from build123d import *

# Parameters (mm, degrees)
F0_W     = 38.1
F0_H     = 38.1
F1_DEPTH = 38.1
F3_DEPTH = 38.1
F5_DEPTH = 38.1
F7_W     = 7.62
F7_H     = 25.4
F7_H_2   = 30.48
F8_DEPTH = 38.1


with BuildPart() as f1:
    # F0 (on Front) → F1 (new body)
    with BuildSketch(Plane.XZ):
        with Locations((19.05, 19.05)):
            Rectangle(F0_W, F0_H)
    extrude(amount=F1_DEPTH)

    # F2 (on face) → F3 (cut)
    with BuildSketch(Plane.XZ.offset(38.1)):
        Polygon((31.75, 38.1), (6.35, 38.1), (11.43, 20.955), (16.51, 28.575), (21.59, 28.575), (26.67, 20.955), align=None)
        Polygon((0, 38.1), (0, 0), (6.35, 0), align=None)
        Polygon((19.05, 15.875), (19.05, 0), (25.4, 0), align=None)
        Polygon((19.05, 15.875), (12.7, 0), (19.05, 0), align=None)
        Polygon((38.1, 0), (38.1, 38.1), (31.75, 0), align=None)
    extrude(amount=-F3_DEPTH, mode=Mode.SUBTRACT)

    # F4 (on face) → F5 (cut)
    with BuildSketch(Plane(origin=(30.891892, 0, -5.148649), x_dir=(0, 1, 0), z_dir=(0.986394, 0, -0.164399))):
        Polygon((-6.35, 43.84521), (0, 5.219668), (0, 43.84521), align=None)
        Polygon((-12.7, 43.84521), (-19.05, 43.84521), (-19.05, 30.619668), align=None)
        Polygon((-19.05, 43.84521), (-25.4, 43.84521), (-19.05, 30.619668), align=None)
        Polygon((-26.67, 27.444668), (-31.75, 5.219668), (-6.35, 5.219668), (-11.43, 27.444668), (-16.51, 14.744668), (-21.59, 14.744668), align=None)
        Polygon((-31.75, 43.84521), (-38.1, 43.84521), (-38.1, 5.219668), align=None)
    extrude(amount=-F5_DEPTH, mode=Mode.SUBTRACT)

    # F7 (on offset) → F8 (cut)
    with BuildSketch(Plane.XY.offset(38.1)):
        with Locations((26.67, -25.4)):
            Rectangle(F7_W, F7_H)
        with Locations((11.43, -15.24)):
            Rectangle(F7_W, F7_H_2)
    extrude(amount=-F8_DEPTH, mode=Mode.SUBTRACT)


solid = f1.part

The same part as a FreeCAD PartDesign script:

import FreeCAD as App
import Part
import Sketcher
Q = App.Units.Quantity

doc = App.newDocument("Part")
body = doc.addObject("PartDesign::Body", "Body")

# Sketch on XZ plane
sketch1 = body.newObject("Sketcher::SketchObject", "Sketch")
sketch1.AttachmentSupport = (doc.getObject("XZ_Plane"), [""])
sketch1.MapMode = "FlatFace"
sketch1.addGeometry([
    Part.LineSegment(App.Vector(0, 38, 0), App.Vector(0, 0, 0)),
    Part.LineSegment(App.Vector(0, 0, 0), App.Vector(38, 0, 0)),
    Part.LineSegment(App.Vector(38, 0, 0), App.Vector(38, 38, 0)),
    Part.LineSegment(App.Vector(38, 38, 0), App.Vector(0, 38, 0)),
], False)
sketch1.addConstraint([
    Sketcher.Constraint("Coincident", 0, 2, 1, 1),
    Sketcher.Constraint("Coincident", 1, 2, 2, 1),
    Sketcher.Constraint("Coincident", 2, 2, 3, 1),
    Sketcher.Constraint("Coincident", 3, 2, 0, 1),
    Sketcher.Constraint("Vertical", 0),
    Sketcher.Constraint("Horizontal", 1),
    Sketcher.Constraint("Vertical", 2),
    Sketcher.Constraint("Horizontal", 3),
    Sketcher.Constraint("Coincident", 0, 2, -1, 1),
    Sketcher.Constraint("Equal", 3, 0),
    Sketcher.Constraint("DistanceX", 1, 1, 1, 2, Q("1.5 in")),
])
pad1 = body.newObject("PartDesign::Pad", "Pad")
pad1.Profile = sketch1
pad1.Length = Q("1.5 in")

# Sketch on XZ plane
sketch2 = body.newObject("Sketcher::SketchObject", "Sketch001")
sketch2.AttachmentSupport = (doc.getObject("XZ_Plane"), [""])
sketch2.MapMode = "FlatFace"
sketch2.AttachmentOffset = App.Placement(App.Vector(0, 0, 1.5 * 25.4), App.Rotation())
sketch2.addGeometry([
    Part.LineSegment(App.Vector(32, 38, 0), App.Vector(6, 38, 0)),  # 0
    Part.LineSegment(App.Vector(6, 38, 0), App.Vector(11, 21, 0)),  # 1
    Part.LineSegment(App.Vector(11, 21, 0), App.Vector(17, 29, 0)),  # 2
    Part.LineSegment(App.Vector(17, 29, 0), App.Vector(22, 29, 0)),  # 3
    Part.LineSegment(App.Vector(22, 29, 0), App.Vector(27, 21, 0)),  # 4
    Part.LineSegment(App.Vector(27, 21, 0), App.Vector(32, 38, 0)),  # 5
    Part.LineSegment(App.Vector(0, 38, 0), App.Vector(0, 0, 0)),  # 6
    Part.LineSegment(App.Vector(0, 0, 0), App.Vector(6, 0, 0)),  # 7
    Part.LineSegment(App.Vector(6, 0, 0), App.Vector(0, 38, 0)),  # 8
    Part.LineSegment(App.Vector(25, 0, 0), App.Vector(19, 16, 0)),  # 9
    Part.LineSegment(App.Vector(19, 16, 0), App.Vector(13, 0, 0)),  # 10
    Part.LineSegment(App.Vector(13, 0, 0), App.Vector(25, 0, 0)),  # 11
    Part.LineSegment(App.Vector(38, 0, 0), App.Vector(38, 38, 0)),  # 12
    Part.LineSegment(App.Vector(38, 38, 0), App.Vector(32, 0, 0)),  # 13
    Part.LineSegment(App.Vector(32, 0, 0), App.Vector(38, 0, 0)),  # 14
], False)
sketch2.addConstraint([
    Sketcher.Constraint("Coincident", 0, 2, 1, 1),
    Sketcher.Constraint("Coincident", 1, 2, 2, 1),
    Sketcher.Constraint("Coincident", 2, 2, 3, 1),
    Sketcher.Constraint("Coincident", 3, 2, 4, 1),
    Sketcher.Constraint("Coincident", 4, 2, 5, 1),
    Sketcher.Constraint("Coincident", 5, 2, 0, 1),
    Sketcher.Constraint("Coincident", 6, 2, 7, 1),
    Sketcher.Constraint("Coincident", 7, 2, 8, 1),
    Sketcher.Constraint("Coincident", 8, 2, 6, 1),
    Sketcher.Constraint("Coincident", 9, 2, 10, 1),
    Sketcher.Constraint("Coincident", 10, 2, 11, 1),
    Sketcher.Constraint("Coincident", 11, 2, 9, 1),
    Sketcher.Constraint("Coincident", 12, 2, 13, 1),
    Sketcher.Constraint("Coincident", 13, 2, 14, 1),
    Sketcher.Constraint("Coincident", 14, 2, 12, 1),
    Sketcher.Constraint("Horizontal", 0),
    Sketcher.Constraint("Horizontal", 3),
    Sketcher.Constraint("Vertical", 6),
    Sketcher.Constraint("Horizontal", 7),
    Sketcher.Constraint("Horizontal", 11),
    Sketcher.Constraint("Vertical", 12),
    Sketcher.Constraint("Horizontal", 14),
    Sketcher.Constraint("Coincident", 6, 2, -1, 1),
    Sketcher.Constraint("PointOnObject", 10, 2, -1),
    Sketcher.Constraint("PointOnObject", 13, 2, -1),
    Sketcher.Constraint("Horizontal", 1, 2, 4, 2),
    Sketcher.Constraint("Horizontal", 5, 2, 8, 2),
    Sketcher.Constraint("Horizontal", 8, 2, 12, 2),
    Sketcher.Constraint("Vertical", 0, 2, 7, 2),
    Sketcher.Constraint("Vertical", 5, 2, 13, 2),
    Sketcher.Constraint("Equal", 7, 14),
    Sketcher.Constraint("Equal", 2, 4),
    Sketcher.Constraint("Equal", 1, 5),
    Sketcher.Constraint("Equal", 9, 10),
    Sketcher.Constraint("DistanceX", 0, 2, 0, 1, Q("1 in")),
    Sketcher.Constraint("DistanceX", 3, 1, 3, 2, Q("0.2 in")),
    Sketcher.Constraint("DistanceX", 11, 1, 11, 2, Q("0.5 in")),
    Sketcher.Constraint("DistanceY", 6, 2, 6, 1, Q("1.5 in")),
    Sketcher.Constraint("DistanceX", -1, 1, 11, 2, Q("1 in")),
    Sketcher.Constraint("DistanceX", 10, 2, 14, 2, Q("1 in")),
    Sketcher.Constraint("DistanceX", 0, 2, 1, 2, Q("0.2 in")),
    Sketcher.Constraint("DistanceY", 1, 2, 2, 2, Q("0.3 in")),
    Sketcher.Constraint("DistanceY", 9, 2, 1, 2, Q("0.2 in")),
    Sketcher.Constraint("DistanceY", -1, 1, 1, 2, Q("0.825 in")),
])
pocket1 = body.newObject("PartDesign::Pocket", "Pocket")
pocket1.Profile = sketch2
pocket1.Length = Q("1.5 in")

# Sketch on an angled plane
sketch3 = body.newObject("Sketcher::SketchObject", "Sketch002")
sketch3.Placement = App.Placement(App.Vector(30.891892, 0, -5.148649), App.Rotation(App.Vector(0, 1, 0), App.Vector(0.164398987, 0, 0.986393924), App.Vector(0.986393924, 0, -0.164398987), "ZXY"))
sketch3.addGeometry([
    Part.LineSegment(App.Vector(-6, 44, 0), App.Vector(0, 5, 0)),  # 0
    Part.LineSegment(App.Vector(0, 5, 0), App.Vector(0, 44, 0)),  # 1
    Part.LineSegment(App.Vector(0, 44, 0), App.Vector(-6, 44, 0)),  # 2
    Part.LineSegment(App.Vector(-13, 44, 0), App.Vector(-25, 44, 0)),  # 3
    Part.LineSegment(App.Vector(-25, 44, 0), App.Vector(-19, 31, 0)),  # 4
    Part.LineSegment(App.Vector(-19, 31, 0), App.Vector(-13, 44, 0)),  # 5
    Part.LineSegment(App.Vector(-27, 27, 0), App.Vector(-32, 5, 0)),  # 6
    Part.LineSegment(App.Vector(-32, 5, 0), App.Vector(-6, 5, 0)),  # 7
    Part.LineSegment(App.Vector(-6, 5, 0), App.Vector(-11, 27, 0)),  # 8
    Part.LineSegment(App.Vector(-11, 27, 0), App.Vector(-17, 15, 0)),  # 9
    Part.LineSegment(App.Vector(-17, 15, 0), App.Vector(-22, 15, 0)),  # 10
    Part.LineSegment(App.Vector(-22, 15, 0), App.Vector(-27, 27, 0)),  # 11
    Part.LineSegment(App.Vector(-32, 44, 0), App.Vector(-38, 44, 0)),  # 12
    Part.LineSegment(App.Vector(-38, 44, 0), App.Vector(-38, 5, 0)),  # 13
    Part.LineSegment(App.Vector(-38, 5, 0), App.Vector(-32, 44, 0)),  # 14
], False)
sketch3.addConstraint([
    Sketcher.Constraint("Coincident", 0, 2, 1, 1),
    Sketcher.Constraint("Coincident", 1, 2, 2, 1),
    Sketcher.Constraint("Coincident", 2, 2, 0, 1),
    Sketcher.Constraint("Coincident", 3, 2, 4, 1),
    Sketcher.Constraint("Coincident", 4, 2, 5, 1),
    Sketcher.Constraint("Coincident", 5, 2, 3, 1),
    Sketcher.Constraint("Coincident", 6, 2, 7, 1),
    Sketcher.Constraint("Coincident", 7, 2, 8, 1),
    Sketcher.Constraint("Coincident", 8, 2, 9, 1),
    Sketcher.Constraint("Coincident", 9, 2, 10, 1),
    Sketcher.Constraint("Coincident", 10, 2, 11, 1),
    Sketcher.Constraint("Coincident", 11, 2, 6, 1),
    Sketcher.Constraint("Coincident", 12, 2, 13, 1),
    Sketcher.Constraint("Coincident", 13, 2, 14, 1),
    Sketcher.Constraint("Coincident", 14, 2, 12, 1),
    Sketcher.Constraint("Vertical", 1),
    Sketcher.Constraint("Horizontal", 2),
    Sketcher.Constraint("Horizontal", 3),
    Sketcher.Constraint("Horizontal", 7),
    Sketcher.Constraint("Horizontal", 10),
    Sketcher.Constraint("Horizontal", 12),
    Sketcher.Constraint("Vertical", 13),
    Sketcher.Constraint("PointOnObject", 0, 2, -2),
    Sketcher.Constraint("Horizontal", 2, 2, 3, 2),
    Sketcher.Constraint("Horizontal", 0, 2, 6, 2),
    Sketcher.Constraint("Horizontal", 8, 2, 11, 2),
    Sketcher.Constraint("Horizontal", 5, 2, 12, 2),
    Sketcher.Constraint("Horizontal", 7, 2, 13, 2),
    Sketcher.Constraint("Vertical", 2, 2, 7, 2),
    Sketcher.Constraint("Vertical", 6, 2, 14, 2),
    Sketcher.Constraint("Equal", 2, 12),
    Sketcher.Constraint("Equal", 4, 5),
    Sketcher.Constraint("Equal", 6, 8),
    Sketcher.Constraint("Equal", 9, 11),
    Sketcher.Constraint("DistanceX", 7, 1, 7, 2, Q("1 in")),
    Sketcher.Constraint("DistanceX", 3, 2, 3, 1, Q("0.5 in")),
    Sketcher.Constraint("DistanceX", 10, 2, 10, 1, Q("0.2 in")),
    Sketcher.Constraint("DistanceX", 3, 2, -1, 1, Q("1 in")),
    Sketcher.Constraint("DistanceY", 0, 2, 4, 2, Q("1 in")),
    Sketcher.Constraint("DistanceX", 12, 2, 5, 2, Q("1 in")),
    Sketcher.Constraint("DistanceX", 4, 2, 8, 2, Q("0.3 in")),
    Sketcher.Constraint("DistanceY", 9, 2, 8, 2, Q("0.5 in")),
    Sketcher.Constraint("DistanceY", 8, 2, 4, 2, Q("0.125 in")),
    Sketcher.Constraint("Distance", 0, 39.144029),
    Sketcher.Constraint("DistanceY", -1, 1, 0, 2, 5.219668),
])
pocket2 = body.newObject("PartDesign::Pocket", "Pocket001")
pocket2.Profile = sketch3
pocket2.Length = Q("1.5 in")

# Sketch on XY plane
sketch4 = body.newObject("Sketcher::SketchObject", "Sketch003")
sketch4.AttachmentSupport = (doc.getObject("XY_Plane"), [""])
sketch4.MapMode = "FlatFace"
sketch4.AttachmentOffset = App.Placement(App.Vector(0, 0, 1.5 * 25.4), App.Rotation())
sketch4.addGeometry([
    Part.LineSegment(App.Vector(23, -13, 0), App.Vector(23, -38, 0)),  # 0
    Part.LineSegment(App.Vector(23, -38, 0), App.Vector(30, -38, 0)),  # 1
    Part.LineSegment(App.Vector(30, -38, 0), App.Vector(30, -13, 0)),  # 2
    Part.LineSegment(App.Vector(30, -13, 0), App.Vector(23, -13, 0)),  # 3
    Part.LineSegment(App.Vector(8, 0, 0), App.Vector(8, -30, 0)),  # 4
    Part.LineSegment(App.Vector(8, -30, 0), App.Vector(15, -30, 0)),  # 5
    Part.LineSegment(App.Vector(15, -30, 0), App.Vector(15, 0, 0)),  # 6
    Part.LineSegment(App.Vector(15, 0, 0), App.Vector(8, 0, 0)),  # 7
], False)
sketch4.addConstraint([
    Sketcher.Constraint("Coincident", 0, 2, 1, 1),
    Sketcher.Constraint("Coincident", 1, 2, 2, 1),
    Sketcher.Constraint("Coincident", 2, 2, 3, 1),
    Sketcher.Constraint("Coincident", 3, 2, 0, 1),
    Sketcher.Constraint("Coincident", 4, 2, 5, 1),
    Sketcher.Constraint("Coincident", 5, 2, 6, 1),
    Sketcher.Constraint("Coincident", 6, 2, 7, 1),
    Sketcher.Constraint("Coincident", 7, 2, 4, 1),
    Sketcher.Constraint("Vertical", 0),
    Sketcher.Constraint("Horizontal", 1),
    Sketcher.Constraint("Vertical", 2),
    Sketcher.Constraint("Horizontal", 3),
    Sketcher.Constraint("Vertical", 4),
    Sketcher.Constraint("Horizontal", 5),
    Sketcher.Constraint("Vertical", 6),
    Sketcher.Constraint("Horizontal", 7),
    Sketcher.Constraint("PointOnObject", 6, 2, -1),
    Sketcher.Constraint("Equal", 3, 5),
    Sketcher.Constraint("DistanceY", 0, 2, 0, 1, Q("1 in")),
    Sketcher.Constraint("DistanceX", 1, 1, 1, 2, Q("0.3 in")),
    Sketcher.Constraint("DistanceY", 4, 2, 4, 1, Q("1.2 in")),
    Sketcher.Constraint("DistanceX", -1, 1, 0, 2, Q("0.9 in")),
    Sketcher.Constraint("DistanceY", 0, 2, -1, 1, Q("1.5 in")),
    Sketcher.Constraint("DistanceX", -1, 1, 4, 2, Q("0.3 in")),
])
pocket3 = body.newObject("PartDesign::Pocket", "Pocket002")
pocket3.Profile = sketch4
pocket3.Length = Q("1.5 in")

doc.recompute()
